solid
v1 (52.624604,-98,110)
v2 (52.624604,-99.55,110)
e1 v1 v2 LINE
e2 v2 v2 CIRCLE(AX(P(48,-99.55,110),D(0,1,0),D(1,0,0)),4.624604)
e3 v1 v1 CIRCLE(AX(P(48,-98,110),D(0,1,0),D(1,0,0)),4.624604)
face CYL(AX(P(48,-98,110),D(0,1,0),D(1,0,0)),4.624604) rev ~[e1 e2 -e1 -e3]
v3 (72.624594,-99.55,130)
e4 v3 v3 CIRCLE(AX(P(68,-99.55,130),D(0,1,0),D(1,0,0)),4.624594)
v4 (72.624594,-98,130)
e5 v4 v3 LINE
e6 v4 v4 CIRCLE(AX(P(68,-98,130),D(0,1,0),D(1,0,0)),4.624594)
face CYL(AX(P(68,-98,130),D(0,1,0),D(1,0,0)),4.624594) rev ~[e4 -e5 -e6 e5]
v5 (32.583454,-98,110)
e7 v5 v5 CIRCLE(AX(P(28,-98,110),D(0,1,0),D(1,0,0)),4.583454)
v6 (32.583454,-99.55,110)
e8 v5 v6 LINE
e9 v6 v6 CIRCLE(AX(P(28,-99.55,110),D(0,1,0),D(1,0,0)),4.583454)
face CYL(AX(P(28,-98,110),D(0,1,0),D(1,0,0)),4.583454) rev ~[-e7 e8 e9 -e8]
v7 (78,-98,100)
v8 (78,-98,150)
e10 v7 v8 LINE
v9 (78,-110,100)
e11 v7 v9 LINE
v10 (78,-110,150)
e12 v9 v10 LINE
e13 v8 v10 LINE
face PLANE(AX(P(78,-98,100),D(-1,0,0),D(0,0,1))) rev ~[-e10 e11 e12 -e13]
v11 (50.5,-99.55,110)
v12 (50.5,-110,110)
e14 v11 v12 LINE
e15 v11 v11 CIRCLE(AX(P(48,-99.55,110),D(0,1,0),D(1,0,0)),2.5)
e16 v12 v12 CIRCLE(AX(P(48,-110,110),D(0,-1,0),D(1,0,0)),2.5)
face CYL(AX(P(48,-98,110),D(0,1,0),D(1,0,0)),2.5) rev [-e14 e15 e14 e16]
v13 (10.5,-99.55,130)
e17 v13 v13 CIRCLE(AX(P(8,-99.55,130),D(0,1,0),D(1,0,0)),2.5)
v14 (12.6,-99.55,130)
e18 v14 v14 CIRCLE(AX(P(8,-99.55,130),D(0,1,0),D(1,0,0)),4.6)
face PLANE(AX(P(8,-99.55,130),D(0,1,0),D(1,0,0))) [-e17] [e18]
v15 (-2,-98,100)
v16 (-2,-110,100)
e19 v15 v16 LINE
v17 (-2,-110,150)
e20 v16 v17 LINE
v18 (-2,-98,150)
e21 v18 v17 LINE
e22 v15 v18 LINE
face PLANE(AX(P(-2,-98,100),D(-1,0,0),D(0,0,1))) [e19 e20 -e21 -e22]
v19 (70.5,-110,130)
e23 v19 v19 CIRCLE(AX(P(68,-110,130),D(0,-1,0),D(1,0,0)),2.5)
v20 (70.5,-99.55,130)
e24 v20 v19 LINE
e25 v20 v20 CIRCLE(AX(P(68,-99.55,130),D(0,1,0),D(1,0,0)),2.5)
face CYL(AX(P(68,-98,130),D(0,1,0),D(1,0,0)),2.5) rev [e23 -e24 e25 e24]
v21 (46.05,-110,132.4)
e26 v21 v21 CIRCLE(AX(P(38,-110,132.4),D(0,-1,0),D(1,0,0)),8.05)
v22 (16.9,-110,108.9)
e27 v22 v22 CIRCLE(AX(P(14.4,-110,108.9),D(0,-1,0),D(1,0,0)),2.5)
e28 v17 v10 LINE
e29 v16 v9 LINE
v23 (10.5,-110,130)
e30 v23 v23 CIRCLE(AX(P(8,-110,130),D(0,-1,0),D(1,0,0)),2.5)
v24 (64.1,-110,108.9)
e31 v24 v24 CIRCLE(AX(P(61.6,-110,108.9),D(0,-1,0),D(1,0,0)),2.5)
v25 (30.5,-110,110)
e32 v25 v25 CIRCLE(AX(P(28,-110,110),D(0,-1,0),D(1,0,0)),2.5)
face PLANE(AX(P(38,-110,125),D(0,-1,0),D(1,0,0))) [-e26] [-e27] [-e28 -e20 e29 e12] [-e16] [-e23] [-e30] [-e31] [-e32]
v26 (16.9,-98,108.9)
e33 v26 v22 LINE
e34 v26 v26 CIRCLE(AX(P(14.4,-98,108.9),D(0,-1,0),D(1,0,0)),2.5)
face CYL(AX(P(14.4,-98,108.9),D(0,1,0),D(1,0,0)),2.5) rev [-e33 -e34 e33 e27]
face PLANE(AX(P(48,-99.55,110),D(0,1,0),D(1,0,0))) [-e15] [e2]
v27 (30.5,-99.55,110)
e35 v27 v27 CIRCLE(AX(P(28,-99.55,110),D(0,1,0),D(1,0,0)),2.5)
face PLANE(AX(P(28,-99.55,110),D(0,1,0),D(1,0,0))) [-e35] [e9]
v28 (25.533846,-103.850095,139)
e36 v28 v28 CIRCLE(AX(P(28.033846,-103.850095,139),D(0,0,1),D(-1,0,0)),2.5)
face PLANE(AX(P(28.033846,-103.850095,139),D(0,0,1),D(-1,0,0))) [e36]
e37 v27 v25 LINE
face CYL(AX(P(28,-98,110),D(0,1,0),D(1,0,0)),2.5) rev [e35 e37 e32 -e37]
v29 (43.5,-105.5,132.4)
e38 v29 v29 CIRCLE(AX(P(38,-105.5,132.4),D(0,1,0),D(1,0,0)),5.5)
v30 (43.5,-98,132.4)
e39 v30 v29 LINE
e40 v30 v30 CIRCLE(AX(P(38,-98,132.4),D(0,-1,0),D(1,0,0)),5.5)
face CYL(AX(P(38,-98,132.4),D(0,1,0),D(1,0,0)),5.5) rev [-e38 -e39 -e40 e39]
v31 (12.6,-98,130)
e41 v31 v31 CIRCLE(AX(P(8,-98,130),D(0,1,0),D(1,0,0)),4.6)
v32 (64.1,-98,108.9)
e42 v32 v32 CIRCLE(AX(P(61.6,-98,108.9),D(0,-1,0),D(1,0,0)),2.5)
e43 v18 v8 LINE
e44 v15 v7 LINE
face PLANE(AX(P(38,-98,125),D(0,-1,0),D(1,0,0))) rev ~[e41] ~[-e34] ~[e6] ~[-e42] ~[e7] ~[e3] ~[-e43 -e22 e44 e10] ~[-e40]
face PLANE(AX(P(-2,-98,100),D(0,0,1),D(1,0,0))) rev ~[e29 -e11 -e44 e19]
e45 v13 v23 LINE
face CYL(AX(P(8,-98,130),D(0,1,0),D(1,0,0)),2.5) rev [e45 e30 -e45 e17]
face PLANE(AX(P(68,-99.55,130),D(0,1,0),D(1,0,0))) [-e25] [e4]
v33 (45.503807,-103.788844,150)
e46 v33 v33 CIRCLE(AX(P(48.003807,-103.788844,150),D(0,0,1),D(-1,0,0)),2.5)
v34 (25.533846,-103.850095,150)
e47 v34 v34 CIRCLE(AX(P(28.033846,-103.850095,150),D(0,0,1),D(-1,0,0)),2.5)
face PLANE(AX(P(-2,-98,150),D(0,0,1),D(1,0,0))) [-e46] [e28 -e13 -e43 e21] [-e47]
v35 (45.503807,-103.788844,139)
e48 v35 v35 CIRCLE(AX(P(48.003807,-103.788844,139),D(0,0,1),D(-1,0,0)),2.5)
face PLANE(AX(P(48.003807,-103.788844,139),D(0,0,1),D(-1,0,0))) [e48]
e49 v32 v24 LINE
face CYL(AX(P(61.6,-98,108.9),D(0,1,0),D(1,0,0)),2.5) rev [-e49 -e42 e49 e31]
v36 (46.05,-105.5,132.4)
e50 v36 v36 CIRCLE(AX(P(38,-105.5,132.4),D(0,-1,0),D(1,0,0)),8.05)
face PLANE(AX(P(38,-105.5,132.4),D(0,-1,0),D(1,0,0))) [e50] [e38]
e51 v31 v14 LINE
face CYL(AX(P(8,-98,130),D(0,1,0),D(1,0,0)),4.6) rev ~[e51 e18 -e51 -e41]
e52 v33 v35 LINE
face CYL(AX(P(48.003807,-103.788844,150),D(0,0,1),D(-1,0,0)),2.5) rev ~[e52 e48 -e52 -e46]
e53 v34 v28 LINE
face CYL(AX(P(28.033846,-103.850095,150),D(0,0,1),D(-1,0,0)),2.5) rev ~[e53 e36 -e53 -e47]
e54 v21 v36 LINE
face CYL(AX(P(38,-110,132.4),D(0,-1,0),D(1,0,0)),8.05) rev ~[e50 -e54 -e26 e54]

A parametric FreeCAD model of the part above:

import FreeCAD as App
import Part
import Sketcher

V = App.Vector
Q = App.Units.Quantity


def add_polygon(sketch, points):
    """Adds a closed chain of lines whose ends are joined by coincident constraints."""
    first, n = sketch.GeometryCount, len(points)
    for a, b in zip(points, points[1:] + points[:1]):
        sketch.addGeometry(Part.LineSegment(App.Vector(*a, 0), App.Vector(*b, 0)), False)
    for i in range(n):
        sketch.addConstraint(Sketcher.Constraint("Coincident", first + i, 2, first + (i + 1) % n, 1))

doc = App.newDocument("Part")
body = doc.addObject("PartDesign::Body", "Body")

# Sketch on XZ plane
sketch1 = body.newObject("Sketcher::SketchObject", "Sketch")
sketch1.AttachmentSupport = (doc.getObject("XZ_Plane"), [""])
sketch1.MapMode = "FlatFace"
sketch1.AttachmentOffset = App.Placement(V(0, 0, 98), App.Rotation())
add_polygon(sketch1, [(-2, 150), (-2, 100), (78, 100), (78, 150)])  # lines 0-3
sketch1.addGeometry(Part.Circle(V(14.4, 108.9, 0), V(0, 0, 1), 2.5), False)  # 4
sketch1.addGeometry(Part.Circle(V(28, 110, 0), V(0, 0, 1), 2.5), False)  # 5
sketch1.addGeometry(Part.Circle(V(48, 110, 0), V(0, 0, 1), 2.5), False)  # 6
sketch1.addGeometry(Part.Circle(V(61.6, 108.9, 0), V(0, 0, 1), 2.5), False)  # 7
sketch1.addGeometry(Part.Circle(V(8, 130, 0), V(0, 0, 1), 2.5), False)  # 8
sketch1.addGeometry(Part.Circle(V(68, 130, 0), V(0, 0, 1), 2.5), False)  # 9
sketch1.addGeometry(Part.Circle(V(38, 132.4, 0), V(0, 0, 1), 5.5), False)  # 10
sketch1.addConstraint([
    Sketcher.Constraint("Vertical", 0),
    Sketcher.Constraint("Horizontal", 1),
    Sketcher.Constraint("Vertical", 2),
    Sketcher.Constraint("Horizontal", 3),
    Sketcher.Constraint("Equal", 4, 5),
    Sketcher.Constraint("Equal", 5, 6),
    Sketcher.Constraint("Equal", 6, 7),
    Sketcher.Constraint("Equal", 7, 8),
    Sketcher.Constraint("Equal", 8, 9),
    Sketcher.Constraint("Horizontal", 5, 3, 6, 3),
    Sketcher.Constraint("Horizontal", 4, 3, 7, 3),
    Sketcher.Constraint("Horizontal", 8, 3, 9, 3),
    Sketcher.Constraint("Diameter", 4, Q("5 mm")),
    Sketcher.Constraint("Diameter", 10, Q("11 mm")),
    Sketcher.Constraint("DistanceX", 1, 1, 1, 2, Q("80 mm")),
    Sketcher.Constraint("DistanceY", 0, 2, 0, 1, Q("50 mm")),
    Sketcher.Constraint("DistanceX", -1, 1, 5, 3, Q("28 mm")),
    Sketcher.Constraint("DistanceY", -1, 1, 5, 3, Q("110 mm")),
    Sketcher.Constraint("DistanceX", -1, 1, 6, 3, Q("48 mm")),
    Sketcher.Constraint("DistanceX", -1, 1, 8, 3, Q("8 mm")),
    Sketcher.Constraint("DistanceY", -1, 1, 8, 3, Q("130 mm")),
    Sketcher.Constraint("DistanceX", -1, 1, 9, 3, Q("68 mm")),
    Sketcher.Constraint("DistanceX", -1, 1, 10, 3, Q("38 mm")),
    Sketcher.Constraint("DistanceX", 0, 2, -1, 1, Q("2 mm")),
    Sketcher.Constraint("DistanceY", -1, 1, 0, 2, Q("100 mm")),
    Sketcher.Constraint("DistanceX", -1, 1, 4, 3, Q("14.4 mm")),
    Sketcher.Constraint("DistanceY", -1, 1, 4, 3, Q("108.9 mm")),
    Sketcher.Constraint("DistanceX", -1, 1, 7, 3, Q("61.6 mm")),
    Sketcher.Constraint("DistanceY", -1, 1, 10, 3, Q("132.4 mm")),
])
pad1 = body.newObject("PartDesign::Pad", "Pad")
pad1.Profile = sketch1
pad1.Length = 12

# Sketch on XY plane
sketch2 = body.newObject("Sketcher::SketchObject", "Sketch001")
sketch2.AttachmentSupport = (doc.getObject("XY_Plane"), [""])
sketch2.MapMode = "FlatFace"
sketch2.AttachmentOffset = App.Placement(V(0, 0, 150), App.Rotation())
sketch2.addGeometry([
    Part.Circle(V(28, -103.9, 0), V(0, 0, 1), 2.5),
    Part.Circle(V(48, -103.8, 0), V(0, 0, 1), 2.5),
], False)
sketch2.addConstraint([
    Sketcher.Constraint("Equal", 0, 1),
    Sketcher.Constraint("Diameter", 0, Q("5 mm")),
    Sketcher.Constraint("DistanceX", 0, 3, 1, 3, Q("19.969961 mm")),
    Sketcher.Constraint("DistanceY", 0, 3, 1, 3, Q("0.061251 mm")),
    Sketcher.Constraint("DistanceX", -1, 1, 0, 3, Q("28.033846 mm")),
    Sketcher.Constraint("DistanceY", 0, 3, -1, 1, Q("103.850095 mm")),
])
pocket1 = body.newObject("PartDesign::Pocket", "Pocket")
pocket1.Profile = sketch2
pocket1.Length = 11

# Sketch on XZ plane
sketch3 = body.newObject("Sketcher::SketchObject", "Sketch002")
sketch3.AttachmentSupport = (doc.getObject("XZ_Plane"), [""])
sketch3.MapMode = "FlatFace"
sketch3.AttachmentOffset = App.Placement(V(0, 0, 110), App.Rotation())
sketch3.addGeometry(Part.Circle(V(38, 132, 0), V(0, 0, 1), 8), False)
sketch3.addConstraint([
    Sketcher.Constraint("Diameter", 0, Q("16.1 mm")),
    Sketcher.Constraint("DistanceX", -1, 1, 0, 3, Q("38 mm")),
    Sketcher.Constraint("DistanceY", -1, 1, 0, 3, Q("132.4 mm")),
])
pocket2 = body.newObject("PartDesign::Pocket", "Pocket001")
pocket2.Profile = sketch3
pocket2.Length = 4.5

# Sketch on XZ plane
sketch4 = body.newObject("Sketcher::SketchObject", "Sketch003")
sketch4.AttachmentSupport = (doc.getObject("XZ_Plane"), [""])
sketch4.MapMode = "FlatFace"
sketch4.AttachmentOffset = App.Placement(V(0, 0, 98), App.Rotation())
sketch4.addGeometry([
    Part.Circle(V(8, 130, 0), V(0, 0, 1), 4.6),
    Part.Circle(V(68, 130, 0), V(0, 0, 1), 4.6),
    Part.Circle(V(28, 110, 0), V(0, 0, 1), 4.6),
    Part.Circle(V(48, 110, 0), V(0, 0, 1), 4.6),
], False)
sketch4.addConstraint([
    Sketcher.Constraint("Horizontal", 0, 3, 1, 3),
    Sketcher.Constraint("Horizontal", 2, 3, 3, 3),
    Sketcher.Constraint("Diameter", 0, Q("9.2 mm")),
    Sketcher.Constraint("DistanceX", -1, 1, 0, 3, Q("8 mm")),
    Sketcher.Constraint("DistanceY", -1, 1, 0, 3, Q("130 mm")),
    Sketcher.Constraint("DistanceX", -1, 1, 1, 3, Q("68 mm")),
    Sketcher.Constraint("DistanceX", -1, 1, 2, 3, Q("28 mm")),
    Sketcher.Constraint("DistanceY", -1, 1, 2, 3, Q("110 mm")),
    Sketcher.Constraint("DistanceX", -1, 1, 3, 3, Q("48 mm")),
    Sketcher.Constraint("Diameter", 1, Q("9.249188 mm")),
    Sketcher.Constraint("Diameter", 2, Q("9.166908 mm")),
    Sketcher.Constraint("Diameter", 3, Q("9.249208 mm")),
])
pocket3 = body.newObject("PartDesign::Pocket", "Pocket002")
pocket3.Profile = sketch4
pocket3.Length = 1.55
pocket3.Reversed = True

doc.recompute()
